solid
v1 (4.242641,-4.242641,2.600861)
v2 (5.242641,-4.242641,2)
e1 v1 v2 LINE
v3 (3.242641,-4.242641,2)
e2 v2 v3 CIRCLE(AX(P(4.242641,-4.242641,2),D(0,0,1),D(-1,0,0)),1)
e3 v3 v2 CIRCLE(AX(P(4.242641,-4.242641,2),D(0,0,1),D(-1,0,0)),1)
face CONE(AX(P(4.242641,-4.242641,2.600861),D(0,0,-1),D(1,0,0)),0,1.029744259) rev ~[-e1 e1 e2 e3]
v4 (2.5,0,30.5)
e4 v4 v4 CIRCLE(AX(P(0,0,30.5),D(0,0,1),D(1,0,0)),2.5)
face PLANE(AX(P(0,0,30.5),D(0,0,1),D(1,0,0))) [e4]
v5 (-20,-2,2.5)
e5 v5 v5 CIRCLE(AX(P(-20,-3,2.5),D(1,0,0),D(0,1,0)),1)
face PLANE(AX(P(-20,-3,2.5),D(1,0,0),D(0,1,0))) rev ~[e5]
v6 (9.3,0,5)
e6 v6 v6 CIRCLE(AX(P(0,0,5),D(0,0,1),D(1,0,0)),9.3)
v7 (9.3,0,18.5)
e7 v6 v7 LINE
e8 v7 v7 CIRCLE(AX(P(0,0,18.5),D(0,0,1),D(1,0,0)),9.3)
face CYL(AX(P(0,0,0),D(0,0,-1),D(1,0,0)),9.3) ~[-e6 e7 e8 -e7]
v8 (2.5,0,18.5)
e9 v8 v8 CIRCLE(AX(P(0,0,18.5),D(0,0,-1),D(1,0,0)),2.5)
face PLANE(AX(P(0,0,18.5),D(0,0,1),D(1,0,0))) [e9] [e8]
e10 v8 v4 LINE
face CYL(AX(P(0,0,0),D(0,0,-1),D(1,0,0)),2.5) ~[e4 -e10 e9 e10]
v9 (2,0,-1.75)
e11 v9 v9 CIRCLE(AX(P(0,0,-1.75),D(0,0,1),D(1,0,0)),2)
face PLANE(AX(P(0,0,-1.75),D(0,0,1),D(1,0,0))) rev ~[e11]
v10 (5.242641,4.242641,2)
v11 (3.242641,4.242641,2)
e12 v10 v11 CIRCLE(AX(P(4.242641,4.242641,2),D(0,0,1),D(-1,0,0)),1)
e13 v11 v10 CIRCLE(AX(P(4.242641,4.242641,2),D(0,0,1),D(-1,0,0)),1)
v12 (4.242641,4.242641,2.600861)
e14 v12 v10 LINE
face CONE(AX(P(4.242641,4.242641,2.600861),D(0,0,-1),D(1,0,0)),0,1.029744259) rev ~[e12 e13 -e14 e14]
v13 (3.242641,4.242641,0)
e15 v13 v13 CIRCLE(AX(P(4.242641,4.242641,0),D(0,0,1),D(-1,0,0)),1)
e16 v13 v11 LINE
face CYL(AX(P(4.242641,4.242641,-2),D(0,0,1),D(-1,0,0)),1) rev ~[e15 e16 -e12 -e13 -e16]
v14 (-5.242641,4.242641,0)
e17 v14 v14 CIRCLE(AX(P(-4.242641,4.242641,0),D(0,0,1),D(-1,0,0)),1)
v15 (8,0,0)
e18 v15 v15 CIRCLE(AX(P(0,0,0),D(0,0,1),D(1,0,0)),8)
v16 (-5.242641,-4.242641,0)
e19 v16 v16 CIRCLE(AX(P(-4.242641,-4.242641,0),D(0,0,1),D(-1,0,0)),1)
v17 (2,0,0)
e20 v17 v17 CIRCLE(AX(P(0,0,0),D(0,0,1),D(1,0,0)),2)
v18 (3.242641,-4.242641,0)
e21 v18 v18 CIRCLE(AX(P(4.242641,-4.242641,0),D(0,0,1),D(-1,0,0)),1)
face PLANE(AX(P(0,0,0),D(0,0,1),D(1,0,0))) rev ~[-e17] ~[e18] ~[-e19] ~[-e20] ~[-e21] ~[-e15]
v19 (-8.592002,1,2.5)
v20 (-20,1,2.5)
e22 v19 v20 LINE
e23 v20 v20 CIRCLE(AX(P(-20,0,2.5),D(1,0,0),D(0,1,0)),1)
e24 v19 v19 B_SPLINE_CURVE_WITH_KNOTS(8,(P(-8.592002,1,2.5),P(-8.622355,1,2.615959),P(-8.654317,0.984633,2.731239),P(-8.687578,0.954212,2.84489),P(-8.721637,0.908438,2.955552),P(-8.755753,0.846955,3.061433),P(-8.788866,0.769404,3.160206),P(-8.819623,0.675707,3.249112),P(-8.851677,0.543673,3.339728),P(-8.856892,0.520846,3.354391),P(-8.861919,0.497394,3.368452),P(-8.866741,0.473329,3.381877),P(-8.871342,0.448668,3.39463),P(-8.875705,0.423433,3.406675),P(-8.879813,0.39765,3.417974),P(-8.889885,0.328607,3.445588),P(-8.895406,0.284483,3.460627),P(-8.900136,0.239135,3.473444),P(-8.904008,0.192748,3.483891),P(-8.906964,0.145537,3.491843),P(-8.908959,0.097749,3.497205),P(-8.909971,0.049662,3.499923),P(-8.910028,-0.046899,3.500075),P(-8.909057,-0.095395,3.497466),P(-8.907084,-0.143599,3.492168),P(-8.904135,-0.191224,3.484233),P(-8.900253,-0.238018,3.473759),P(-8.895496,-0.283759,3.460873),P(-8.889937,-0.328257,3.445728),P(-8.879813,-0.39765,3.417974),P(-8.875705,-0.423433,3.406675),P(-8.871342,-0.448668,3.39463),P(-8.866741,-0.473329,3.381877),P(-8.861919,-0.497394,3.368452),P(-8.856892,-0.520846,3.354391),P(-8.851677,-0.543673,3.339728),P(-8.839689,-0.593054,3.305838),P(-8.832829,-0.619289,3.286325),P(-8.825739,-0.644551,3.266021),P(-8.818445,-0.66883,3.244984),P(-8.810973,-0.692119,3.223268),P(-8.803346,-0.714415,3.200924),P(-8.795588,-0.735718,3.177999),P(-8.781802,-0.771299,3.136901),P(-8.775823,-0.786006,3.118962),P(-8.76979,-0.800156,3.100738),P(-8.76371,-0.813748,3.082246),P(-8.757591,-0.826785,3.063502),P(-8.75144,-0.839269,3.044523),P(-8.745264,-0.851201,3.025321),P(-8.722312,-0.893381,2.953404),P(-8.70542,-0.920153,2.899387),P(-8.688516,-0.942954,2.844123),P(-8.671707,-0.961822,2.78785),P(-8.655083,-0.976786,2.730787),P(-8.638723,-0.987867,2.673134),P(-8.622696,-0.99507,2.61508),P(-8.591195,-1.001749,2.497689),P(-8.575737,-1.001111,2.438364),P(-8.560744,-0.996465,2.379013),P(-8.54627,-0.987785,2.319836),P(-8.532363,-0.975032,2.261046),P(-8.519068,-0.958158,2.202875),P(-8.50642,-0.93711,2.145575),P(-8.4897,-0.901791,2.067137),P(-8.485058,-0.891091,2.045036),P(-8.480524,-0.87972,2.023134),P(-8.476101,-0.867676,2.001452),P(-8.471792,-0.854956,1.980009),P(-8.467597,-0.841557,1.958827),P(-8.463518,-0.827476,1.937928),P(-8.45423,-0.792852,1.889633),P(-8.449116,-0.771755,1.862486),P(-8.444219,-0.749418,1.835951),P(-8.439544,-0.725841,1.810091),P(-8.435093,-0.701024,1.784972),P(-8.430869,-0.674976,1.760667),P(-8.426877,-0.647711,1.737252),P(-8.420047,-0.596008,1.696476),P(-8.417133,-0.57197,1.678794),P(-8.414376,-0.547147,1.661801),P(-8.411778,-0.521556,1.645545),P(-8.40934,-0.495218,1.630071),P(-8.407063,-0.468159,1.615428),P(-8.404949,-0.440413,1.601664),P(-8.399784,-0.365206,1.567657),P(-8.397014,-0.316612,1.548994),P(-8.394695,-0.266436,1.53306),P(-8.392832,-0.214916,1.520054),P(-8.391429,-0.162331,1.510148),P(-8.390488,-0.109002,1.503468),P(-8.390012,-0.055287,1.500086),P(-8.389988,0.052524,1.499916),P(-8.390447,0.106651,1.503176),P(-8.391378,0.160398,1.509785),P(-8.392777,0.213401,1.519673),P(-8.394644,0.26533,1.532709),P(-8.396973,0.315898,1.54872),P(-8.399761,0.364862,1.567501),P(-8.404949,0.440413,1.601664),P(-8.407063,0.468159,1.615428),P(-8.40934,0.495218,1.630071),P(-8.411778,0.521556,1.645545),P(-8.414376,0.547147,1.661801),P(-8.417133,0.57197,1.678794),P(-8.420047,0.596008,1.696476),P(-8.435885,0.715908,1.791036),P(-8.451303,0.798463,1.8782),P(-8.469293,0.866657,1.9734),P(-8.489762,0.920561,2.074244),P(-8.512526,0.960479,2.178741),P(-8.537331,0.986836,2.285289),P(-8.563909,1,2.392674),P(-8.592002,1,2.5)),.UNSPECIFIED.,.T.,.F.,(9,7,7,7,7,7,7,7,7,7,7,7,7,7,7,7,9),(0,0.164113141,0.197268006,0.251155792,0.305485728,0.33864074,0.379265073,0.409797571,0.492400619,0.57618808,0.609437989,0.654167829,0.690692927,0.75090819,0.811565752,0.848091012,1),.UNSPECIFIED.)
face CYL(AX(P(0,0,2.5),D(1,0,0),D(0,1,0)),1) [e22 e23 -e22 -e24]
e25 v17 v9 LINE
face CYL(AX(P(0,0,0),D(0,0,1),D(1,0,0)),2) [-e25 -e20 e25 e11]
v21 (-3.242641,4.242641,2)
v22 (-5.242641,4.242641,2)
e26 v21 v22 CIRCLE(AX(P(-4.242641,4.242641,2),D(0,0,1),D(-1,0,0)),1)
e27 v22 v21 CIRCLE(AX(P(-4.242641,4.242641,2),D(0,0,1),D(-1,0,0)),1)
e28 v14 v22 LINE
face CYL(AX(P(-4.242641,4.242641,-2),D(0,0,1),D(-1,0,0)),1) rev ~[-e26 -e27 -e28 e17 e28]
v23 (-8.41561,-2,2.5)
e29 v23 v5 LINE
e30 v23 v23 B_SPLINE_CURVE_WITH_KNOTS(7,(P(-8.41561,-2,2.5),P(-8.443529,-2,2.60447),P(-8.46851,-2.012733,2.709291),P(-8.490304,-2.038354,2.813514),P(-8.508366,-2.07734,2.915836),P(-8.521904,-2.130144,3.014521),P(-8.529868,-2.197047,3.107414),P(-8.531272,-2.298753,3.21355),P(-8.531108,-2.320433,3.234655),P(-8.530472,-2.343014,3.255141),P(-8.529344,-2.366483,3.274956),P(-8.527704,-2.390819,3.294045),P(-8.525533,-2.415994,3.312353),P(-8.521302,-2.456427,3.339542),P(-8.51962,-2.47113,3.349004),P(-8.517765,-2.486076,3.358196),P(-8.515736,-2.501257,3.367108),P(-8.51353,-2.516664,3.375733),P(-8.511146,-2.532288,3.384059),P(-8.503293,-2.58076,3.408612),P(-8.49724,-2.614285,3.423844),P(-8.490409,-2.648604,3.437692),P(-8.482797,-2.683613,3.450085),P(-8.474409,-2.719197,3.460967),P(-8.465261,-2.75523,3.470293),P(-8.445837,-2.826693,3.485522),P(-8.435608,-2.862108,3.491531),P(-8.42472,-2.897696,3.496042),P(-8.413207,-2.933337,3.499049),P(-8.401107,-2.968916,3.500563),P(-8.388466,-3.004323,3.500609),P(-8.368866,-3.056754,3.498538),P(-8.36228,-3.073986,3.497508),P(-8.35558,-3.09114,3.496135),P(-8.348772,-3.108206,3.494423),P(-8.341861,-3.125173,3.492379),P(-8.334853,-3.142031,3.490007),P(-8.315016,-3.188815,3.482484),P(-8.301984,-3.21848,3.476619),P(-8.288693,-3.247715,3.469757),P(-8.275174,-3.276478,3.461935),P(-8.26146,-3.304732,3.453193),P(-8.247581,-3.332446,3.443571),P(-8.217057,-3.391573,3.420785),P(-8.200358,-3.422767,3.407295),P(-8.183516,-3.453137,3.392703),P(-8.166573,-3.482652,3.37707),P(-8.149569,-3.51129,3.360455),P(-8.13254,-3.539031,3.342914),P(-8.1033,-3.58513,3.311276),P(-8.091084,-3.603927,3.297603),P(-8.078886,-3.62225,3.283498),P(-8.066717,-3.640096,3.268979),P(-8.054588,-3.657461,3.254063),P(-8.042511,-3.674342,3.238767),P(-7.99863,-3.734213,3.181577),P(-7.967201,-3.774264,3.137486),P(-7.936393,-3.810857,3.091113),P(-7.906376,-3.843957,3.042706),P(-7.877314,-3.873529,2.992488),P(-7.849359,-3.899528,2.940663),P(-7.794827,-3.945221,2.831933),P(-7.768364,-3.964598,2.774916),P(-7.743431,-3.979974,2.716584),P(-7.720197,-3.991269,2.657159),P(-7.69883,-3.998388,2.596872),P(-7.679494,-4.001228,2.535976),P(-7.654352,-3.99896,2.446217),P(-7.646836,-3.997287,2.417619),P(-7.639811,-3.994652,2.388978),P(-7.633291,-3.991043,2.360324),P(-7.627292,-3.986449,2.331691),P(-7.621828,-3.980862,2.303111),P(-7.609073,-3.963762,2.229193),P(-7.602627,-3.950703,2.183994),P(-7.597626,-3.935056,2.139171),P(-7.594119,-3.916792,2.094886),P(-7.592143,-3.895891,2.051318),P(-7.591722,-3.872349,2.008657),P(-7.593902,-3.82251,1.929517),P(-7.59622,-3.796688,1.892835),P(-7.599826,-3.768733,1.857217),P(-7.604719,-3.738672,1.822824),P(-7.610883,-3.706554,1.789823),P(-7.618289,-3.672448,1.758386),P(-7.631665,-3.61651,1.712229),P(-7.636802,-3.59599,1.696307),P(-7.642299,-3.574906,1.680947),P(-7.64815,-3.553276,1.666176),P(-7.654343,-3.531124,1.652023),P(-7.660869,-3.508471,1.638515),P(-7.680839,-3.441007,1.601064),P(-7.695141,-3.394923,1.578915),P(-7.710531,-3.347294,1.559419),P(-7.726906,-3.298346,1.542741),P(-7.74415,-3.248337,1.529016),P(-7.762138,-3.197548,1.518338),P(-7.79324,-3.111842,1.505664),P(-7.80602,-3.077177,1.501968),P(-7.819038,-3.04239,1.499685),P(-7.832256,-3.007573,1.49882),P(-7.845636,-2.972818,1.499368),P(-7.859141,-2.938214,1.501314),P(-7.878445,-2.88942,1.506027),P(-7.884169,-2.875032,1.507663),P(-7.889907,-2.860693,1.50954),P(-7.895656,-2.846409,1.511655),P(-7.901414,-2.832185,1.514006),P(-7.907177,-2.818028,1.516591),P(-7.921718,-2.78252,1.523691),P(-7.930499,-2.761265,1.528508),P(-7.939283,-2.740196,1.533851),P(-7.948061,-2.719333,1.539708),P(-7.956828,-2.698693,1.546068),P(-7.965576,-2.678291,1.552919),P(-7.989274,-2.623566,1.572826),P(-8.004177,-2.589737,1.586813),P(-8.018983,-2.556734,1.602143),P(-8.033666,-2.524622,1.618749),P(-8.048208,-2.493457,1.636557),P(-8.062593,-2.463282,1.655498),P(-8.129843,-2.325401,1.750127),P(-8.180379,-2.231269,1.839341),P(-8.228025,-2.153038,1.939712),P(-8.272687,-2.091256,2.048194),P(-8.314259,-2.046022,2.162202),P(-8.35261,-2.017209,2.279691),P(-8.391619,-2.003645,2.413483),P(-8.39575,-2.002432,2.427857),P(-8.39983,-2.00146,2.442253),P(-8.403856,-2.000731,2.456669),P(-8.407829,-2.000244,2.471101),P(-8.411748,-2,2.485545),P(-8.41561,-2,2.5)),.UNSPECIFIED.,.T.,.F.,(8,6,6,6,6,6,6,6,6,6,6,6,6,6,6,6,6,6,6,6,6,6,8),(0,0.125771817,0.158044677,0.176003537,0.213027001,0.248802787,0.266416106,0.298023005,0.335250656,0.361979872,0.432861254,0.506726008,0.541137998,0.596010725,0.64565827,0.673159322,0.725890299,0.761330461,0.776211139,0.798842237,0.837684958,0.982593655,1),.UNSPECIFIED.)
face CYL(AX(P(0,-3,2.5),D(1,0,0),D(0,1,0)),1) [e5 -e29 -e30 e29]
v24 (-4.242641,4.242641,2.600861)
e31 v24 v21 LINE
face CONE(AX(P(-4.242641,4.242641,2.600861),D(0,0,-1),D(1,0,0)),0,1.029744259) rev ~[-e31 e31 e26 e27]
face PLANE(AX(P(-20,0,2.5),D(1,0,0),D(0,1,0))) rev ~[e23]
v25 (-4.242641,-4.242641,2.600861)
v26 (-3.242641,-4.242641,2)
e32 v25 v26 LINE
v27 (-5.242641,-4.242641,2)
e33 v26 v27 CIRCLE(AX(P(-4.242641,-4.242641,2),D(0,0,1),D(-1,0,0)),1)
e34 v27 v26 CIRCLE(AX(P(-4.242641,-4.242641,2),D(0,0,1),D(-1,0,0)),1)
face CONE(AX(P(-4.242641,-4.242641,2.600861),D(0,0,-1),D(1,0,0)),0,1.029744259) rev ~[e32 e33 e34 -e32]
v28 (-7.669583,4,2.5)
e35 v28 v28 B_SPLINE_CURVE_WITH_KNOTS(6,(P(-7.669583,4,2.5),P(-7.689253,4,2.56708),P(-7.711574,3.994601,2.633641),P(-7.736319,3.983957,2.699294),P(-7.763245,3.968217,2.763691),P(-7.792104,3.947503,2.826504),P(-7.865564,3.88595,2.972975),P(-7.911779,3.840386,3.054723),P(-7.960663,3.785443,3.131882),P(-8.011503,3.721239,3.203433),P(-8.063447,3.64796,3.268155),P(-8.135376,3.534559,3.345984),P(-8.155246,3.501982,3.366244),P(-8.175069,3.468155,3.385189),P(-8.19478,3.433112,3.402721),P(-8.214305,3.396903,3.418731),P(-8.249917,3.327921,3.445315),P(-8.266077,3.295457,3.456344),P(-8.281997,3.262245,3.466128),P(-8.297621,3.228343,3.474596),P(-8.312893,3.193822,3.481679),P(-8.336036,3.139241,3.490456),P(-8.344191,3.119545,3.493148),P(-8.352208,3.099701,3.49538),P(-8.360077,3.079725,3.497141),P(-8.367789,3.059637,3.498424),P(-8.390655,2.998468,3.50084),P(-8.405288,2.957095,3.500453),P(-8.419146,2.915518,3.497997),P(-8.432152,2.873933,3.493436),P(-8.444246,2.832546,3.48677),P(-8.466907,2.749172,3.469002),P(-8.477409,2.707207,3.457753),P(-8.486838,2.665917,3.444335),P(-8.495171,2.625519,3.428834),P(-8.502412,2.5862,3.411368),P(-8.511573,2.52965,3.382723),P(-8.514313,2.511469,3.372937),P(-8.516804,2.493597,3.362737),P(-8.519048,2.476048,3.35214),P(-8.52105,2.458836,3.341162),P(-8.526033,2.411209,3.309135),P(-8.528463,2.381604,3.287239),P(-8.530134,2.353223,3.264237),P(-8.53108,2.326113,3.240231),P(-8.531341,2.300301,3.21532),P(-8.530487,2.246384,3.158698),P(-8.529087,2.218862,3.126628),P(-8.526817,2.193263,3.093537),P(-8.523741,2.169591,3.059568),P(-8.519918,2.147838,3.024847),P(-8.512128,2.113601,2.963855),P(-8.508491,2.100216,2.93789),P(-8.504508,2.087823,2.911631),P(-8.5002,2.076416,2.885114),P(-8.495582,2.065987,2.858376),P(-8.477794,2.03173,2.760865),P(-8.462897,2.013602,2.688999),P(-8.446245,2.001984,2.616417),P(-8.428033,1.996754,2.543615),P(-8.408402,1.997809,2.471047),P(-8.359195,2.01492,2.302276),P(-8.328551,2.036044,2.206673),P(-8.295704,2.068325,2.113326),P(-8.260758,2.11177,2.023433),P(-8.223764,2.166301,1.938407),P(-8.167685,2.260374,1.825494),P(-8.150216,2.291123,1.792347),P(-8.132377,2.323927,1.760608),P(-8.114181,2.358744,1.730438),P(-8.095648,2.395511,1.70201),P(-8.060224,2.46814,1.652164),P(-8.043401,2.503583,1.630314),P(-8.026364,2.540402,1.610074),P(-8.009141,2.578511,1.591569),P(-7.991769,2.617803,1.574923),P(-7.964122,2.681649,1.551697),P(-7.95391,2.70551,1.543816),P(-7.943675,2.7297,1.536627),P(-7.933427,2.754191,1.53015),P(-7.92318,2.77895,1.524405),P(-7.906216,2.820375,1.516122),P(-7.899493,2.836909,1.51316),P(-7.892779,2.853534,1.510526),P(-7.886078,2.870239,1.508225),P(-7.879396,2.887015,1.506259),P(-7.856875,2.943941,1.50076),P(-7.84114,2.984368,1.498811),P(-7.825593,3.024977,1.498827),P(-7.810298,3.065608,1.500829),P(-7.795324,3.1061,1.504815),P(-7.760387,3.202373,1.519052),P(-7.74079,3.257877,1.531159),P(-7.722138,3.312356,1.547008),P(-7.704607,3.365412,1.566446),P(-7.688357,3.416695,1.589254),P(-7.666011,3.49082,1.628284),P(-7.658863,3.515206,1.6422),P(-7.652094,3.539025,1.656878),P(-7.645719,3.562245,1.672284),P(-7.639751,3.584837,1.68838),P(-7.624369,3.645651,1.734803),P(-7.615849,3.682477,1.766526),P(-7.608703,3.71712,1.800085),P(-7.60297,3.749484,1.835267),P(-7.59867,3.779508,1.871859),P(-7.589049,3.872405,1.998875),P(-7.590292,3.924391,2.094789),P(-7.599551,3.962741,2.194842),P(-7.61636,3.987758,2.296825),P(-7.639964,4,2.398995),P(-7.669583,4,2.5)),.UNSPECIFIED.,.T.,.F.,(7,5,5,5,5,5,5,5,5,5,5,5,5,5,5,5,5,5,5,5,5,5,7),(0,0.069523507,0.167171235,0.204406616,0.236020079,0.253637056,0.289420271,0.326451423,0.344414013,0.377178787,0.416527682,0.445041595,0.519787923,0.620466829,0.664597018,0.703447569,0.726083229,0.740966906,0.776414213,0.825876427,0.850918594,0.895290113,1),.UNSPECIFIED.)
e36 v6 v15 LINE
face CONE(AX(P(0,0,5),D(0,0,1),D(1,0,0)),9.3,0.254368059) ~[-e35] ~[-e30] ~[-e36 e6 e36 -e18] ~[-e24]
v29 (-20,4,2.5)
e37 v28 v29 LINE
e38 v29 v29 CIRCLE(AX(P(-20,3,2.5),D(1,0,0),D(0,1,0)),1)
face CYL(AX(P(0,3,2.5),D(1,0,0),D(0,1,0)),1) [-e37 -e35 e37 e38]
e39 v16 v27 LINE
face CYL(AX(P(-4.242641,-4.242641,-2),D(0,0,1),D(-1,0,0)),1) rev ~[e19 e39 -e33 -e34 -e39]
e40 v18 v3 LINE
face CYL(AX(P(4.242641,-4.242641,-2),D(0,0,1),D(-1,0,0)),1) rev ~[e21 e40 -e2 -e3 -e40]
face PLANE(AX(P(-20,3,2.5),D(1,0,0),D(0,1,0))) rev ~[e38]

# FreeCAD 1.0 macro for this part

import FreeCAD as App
import Part
import Sketcher

V = App.Vector
Q = App.Units.Quantity


def edges_at(feature, points):
    """Names of the edges that pass closest to the given points."""
    edges = feature.Shape.Edges
    near = lambda p: min(range(len(edges)), key=lambda i: edges[i].distToShape(Part.Vertex(*p))[0])
    return sorted({f"Edge{near(p) + 1}" for p in points})

doc = App.newDocument("Part")
body = doc.addObject("PartDesign::Body", "Body")

# Sketch on XY plane
sketch1 = doc.addObject("Sketcher::SketchObject", "Sketch")
body.addObject(sketch1)
sketch1.AttachmentSupport = (doc.XY_Plane, [""])
sketch1.MapMode = "FlatFace"
sketch1.addGeometry(Part.Circle(V(0, 0, 0), V(0, 0, 1), 9.3), False)
sketch1.addConstraint(Sketcher.Constraint("Coincident", 0, 3, -1, 1))
sketch1.addConstraint(Sketcher.Constraint("Diameter", 0, Q("18.6 mm")))
pad1 = doc.addObject("PartDesign::Pad", "Pad")
body.addObject(pad1)
pad1.Profile = sketch1
pad1.Length = 18.5

# Sketch on XY plane
sketch2 = doc.addObject("Sketcher::SketchObject", "Sketch001")
body.addObject(sketch2)
sketch2.AttachmentSupport = (doc.XY_Plane, [""])
sketch2.MapMode = "FlatFace"
sketch2.addGeometry(Part.Circle(V(0, 0, 0), V(0, 0, 1), 2.5), False)
sketch2.addConstraint(Sketcher.Constraint("Coincident", 0, 3, -1, 1))
sketch2.addConstraint(Sketcher.Constraint("Diameter", 0, Q("5 mm")))
pad2 = doc.addObject("PartDesign::Pad", "Pad001")
body.addObject(pad2)
pad2.Profile = sketch2
pad2.Length = 30.5

# Sketch on XY plane
sketch3 = doc.addObject("Sketcher::SketchObject", "Sketch002")
body.addObject(sketch3)
sketch3.AttachmentSupport = (doc.XY_Plane, [""])
sketch3.MapMode = "FlatFace"
sketch3.addGeometry(Part.Circle(V(0, 0, 0), V(0, 0, 1), 2), False)
sketch3.addConstraint(Sketcher.Constraint("Coincident", 0, 3, -1, 1))
sketch3.addConstraint(Sketcher.Constraint("Diameter", 0, Q("4 mm")))
pad3 = doc.addObject("PartDesign::Pad", "Pad002")
body.addObject(pad3)
pad3.Profile = sketch3
pad3.Length = 1.75
pad3.Reversed = True
doc.recompute()

chamfer = doc.addObject("PartDesign::Chamfer", "Chamfer")
body.addObject(chamfer)
chamfer.Base = (pad3, edges_at(pad3, [(-9.3, 0, 0)]))
chamfer.ChamferType = "Two distances"
chamfer.Size = 5
chamfer.Size2 = 1.3

# Sketch on YZ plane
sketch4 = doc.addObject("Sketcher::SketchObject", "Sketch003")
body.addObject(sketch4)
sketch4.AttachmentSupport = (doc.YZ_Plane, [""])
sketch4.MapMode = "FlatFace"
sketch4.addGeometry(Part.Circle(V(0, 2.5, 0), V(0, 0, 1), 1), False)
sketch4.addGeometry(Part.Circle(V(-3, 2.5, 0), V(0, 0, 1), 1), False)
sketch4.addGeometry(Part.Circle(V(3, 2.5, 0), V(0, 0, 1), 1), False)
sketch4.addConstraint(Sketcher.Constraint("Equal", 0, 1))
sketch4.addConstraint(Sketcher.Constraint("Equal", 1, 2))
sketch4.addConstraint(Sketcher.Constraint("Symmetric", 1, 3, 2, 3, -2))
sketch4.addConstraint(Sketcher.Constraint("PointOnObject", 0, 3, -2))
sketch4.addConstraint(Sketcher.Constraint("Horizontal", 0, 3, 1, 3))
sketch4.addConstraint(Sketcher.Constraint("Diameter", 0, Q("2 mm")))
sketch4.addConstraint(Sketcher.Constraint("DistanceX", 1, 3, -1, 1, Q("3 mm")))
sketch4.addConstraint(Sketcher.Constraint("DistanceY", -1, 1, 0, 3, Q("2.5 mm")))
pad4 = doc.addObject("PartDesign::Pad", "Pad003")
body.addObject(pad4)
pad4.Profile = sketch4
pad4.Length = 20
pad4.Reversed = True

# Sketch on XY plane
sketch5 = doc.addObject("Sketcher::SketchObject", "Sketch004")
body.addObject(sketch5)
sketch5.AttachmentSupport = (doc.XY_Plane, [""])
sketch5.MapMode = "FlatFace"
sketch5.addGeometry(Part.Circle(V(-4.242641, 4.242641, 0), V(0, 0, 1), 1), False)
sketch5.addGeometry(Part.Circle(V(-4.242641, -4.242641, 0), V(0, 0, 1), 1), False)
sketch5.addGeometry(Part.Circle(V(4.242641, -4.242641, 0), V(0, 0, 1), 1), False)
sketch5.addGeometry(Part.Circle(V(4.242641, 4.242641, 0), V(0, 0, 1), 1), False)
sketch5.addConstraint(Sketcher.Constraint("Equal", 0, 1))
sketch5.addConstraint(Sketcher.Constraint("Equal", 1, 2))
sketch5.addConstraint(Sketcher.Constraint("Equal", 2, 3))
sketch5.addConstraint(Sketcher.Constraint("Symmetric", 0, 3, 2, 3, -1, 1))
sketch5.addConstraint(Sketcher.Constraint("Symmetric", 1, 3, 3, 3, -1, 1))
sketch5.addConstraint(Sketcher.Constraint("Symmetric", 1, 3, 2, 3, -2))
sketch5.addConstraint(Sketcher.Constraint("Diameter", 0, Q("2 mm")))
sketch5.addConstraint(Sketcher.Constraint("DistanceX", 0, 3, -1, 1, Q("4.242641 mm")))
sketch5.addConstraint(Sketcher.Constraint("DistanceY", -1, 1, 0, 3, Q("4.242641 mm")))
doc.recompute()
hole = doc.addObject("PartDesign::Hole", "Hole")
body.addObject(hole)
hole.Profile = sketch5
hole.ThreadType = "None"
hole.Diameter = 2
hole.DepthType = "Dimension"
hole.Depth = 2
hole.DrillPoint = "Angled"
hole.DrillPointAngle = 118
hole.Reversed = True

doc.recompute()
